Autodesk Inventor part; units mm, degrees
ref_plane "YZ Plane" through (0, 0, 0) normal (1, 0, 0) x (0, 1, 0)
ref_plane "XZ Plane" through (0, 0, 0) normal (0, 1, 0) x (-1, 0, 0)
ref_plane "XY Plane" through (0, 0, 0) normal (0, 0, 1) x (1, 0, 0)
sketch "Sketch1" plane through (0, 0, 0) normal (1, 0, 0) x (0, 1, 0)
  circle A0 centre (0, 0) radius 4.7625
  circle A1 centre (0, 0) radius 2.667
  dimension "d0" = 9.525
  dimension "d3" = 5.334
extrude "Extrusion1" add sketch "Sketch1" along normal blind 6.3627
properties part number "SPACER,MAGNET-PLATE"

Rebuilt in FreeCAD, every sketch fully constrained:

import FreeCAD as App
import Part
import Sketcher
Q = App.Units.Quantity

doc = App.newDocument("Part")
body = doc.addObject("PartDesign::Body", "Body")

# Sketch on YZ plane
sketch1 = body.newObject("Sketcher::SketchObject", "Sketch")
sketch1.AttachmentSupport = (doc.getObject("YZ_Plane"), [""])
sketch1.MapMode = "FlatFace"
sketch1.addGeometry(Part.Circle(App.Vector(0, 0, 0), App.Vector(0, 0, 1), 4.7625), False)
sketch1.addGeometry(Part.Circle(App.Vector(0, 0, 0), App.Vector(0, 0, 1), 2.667), False)
sketch1.addConstraint(Sketcher.Constraint("Coincident", 0, 3, -1, 1))
sketch1.addConstraint(Sketcher.Constraint("Coincident", 1, 3, -1, 1))
sketch1.addConstraint(Sketcher.Constraint("Diameter", 1, Q("0.21 in")))
sketch1.addConstraint(Sketcher.Constraint("Diameter", 0, Q("0.375 in")))
pad1 = body.newObject("PartDesign::Pad", "Pad")
pad1.Profile = sketch1
pad1.Length = Q("0.2505 in")

doc.recompute()
